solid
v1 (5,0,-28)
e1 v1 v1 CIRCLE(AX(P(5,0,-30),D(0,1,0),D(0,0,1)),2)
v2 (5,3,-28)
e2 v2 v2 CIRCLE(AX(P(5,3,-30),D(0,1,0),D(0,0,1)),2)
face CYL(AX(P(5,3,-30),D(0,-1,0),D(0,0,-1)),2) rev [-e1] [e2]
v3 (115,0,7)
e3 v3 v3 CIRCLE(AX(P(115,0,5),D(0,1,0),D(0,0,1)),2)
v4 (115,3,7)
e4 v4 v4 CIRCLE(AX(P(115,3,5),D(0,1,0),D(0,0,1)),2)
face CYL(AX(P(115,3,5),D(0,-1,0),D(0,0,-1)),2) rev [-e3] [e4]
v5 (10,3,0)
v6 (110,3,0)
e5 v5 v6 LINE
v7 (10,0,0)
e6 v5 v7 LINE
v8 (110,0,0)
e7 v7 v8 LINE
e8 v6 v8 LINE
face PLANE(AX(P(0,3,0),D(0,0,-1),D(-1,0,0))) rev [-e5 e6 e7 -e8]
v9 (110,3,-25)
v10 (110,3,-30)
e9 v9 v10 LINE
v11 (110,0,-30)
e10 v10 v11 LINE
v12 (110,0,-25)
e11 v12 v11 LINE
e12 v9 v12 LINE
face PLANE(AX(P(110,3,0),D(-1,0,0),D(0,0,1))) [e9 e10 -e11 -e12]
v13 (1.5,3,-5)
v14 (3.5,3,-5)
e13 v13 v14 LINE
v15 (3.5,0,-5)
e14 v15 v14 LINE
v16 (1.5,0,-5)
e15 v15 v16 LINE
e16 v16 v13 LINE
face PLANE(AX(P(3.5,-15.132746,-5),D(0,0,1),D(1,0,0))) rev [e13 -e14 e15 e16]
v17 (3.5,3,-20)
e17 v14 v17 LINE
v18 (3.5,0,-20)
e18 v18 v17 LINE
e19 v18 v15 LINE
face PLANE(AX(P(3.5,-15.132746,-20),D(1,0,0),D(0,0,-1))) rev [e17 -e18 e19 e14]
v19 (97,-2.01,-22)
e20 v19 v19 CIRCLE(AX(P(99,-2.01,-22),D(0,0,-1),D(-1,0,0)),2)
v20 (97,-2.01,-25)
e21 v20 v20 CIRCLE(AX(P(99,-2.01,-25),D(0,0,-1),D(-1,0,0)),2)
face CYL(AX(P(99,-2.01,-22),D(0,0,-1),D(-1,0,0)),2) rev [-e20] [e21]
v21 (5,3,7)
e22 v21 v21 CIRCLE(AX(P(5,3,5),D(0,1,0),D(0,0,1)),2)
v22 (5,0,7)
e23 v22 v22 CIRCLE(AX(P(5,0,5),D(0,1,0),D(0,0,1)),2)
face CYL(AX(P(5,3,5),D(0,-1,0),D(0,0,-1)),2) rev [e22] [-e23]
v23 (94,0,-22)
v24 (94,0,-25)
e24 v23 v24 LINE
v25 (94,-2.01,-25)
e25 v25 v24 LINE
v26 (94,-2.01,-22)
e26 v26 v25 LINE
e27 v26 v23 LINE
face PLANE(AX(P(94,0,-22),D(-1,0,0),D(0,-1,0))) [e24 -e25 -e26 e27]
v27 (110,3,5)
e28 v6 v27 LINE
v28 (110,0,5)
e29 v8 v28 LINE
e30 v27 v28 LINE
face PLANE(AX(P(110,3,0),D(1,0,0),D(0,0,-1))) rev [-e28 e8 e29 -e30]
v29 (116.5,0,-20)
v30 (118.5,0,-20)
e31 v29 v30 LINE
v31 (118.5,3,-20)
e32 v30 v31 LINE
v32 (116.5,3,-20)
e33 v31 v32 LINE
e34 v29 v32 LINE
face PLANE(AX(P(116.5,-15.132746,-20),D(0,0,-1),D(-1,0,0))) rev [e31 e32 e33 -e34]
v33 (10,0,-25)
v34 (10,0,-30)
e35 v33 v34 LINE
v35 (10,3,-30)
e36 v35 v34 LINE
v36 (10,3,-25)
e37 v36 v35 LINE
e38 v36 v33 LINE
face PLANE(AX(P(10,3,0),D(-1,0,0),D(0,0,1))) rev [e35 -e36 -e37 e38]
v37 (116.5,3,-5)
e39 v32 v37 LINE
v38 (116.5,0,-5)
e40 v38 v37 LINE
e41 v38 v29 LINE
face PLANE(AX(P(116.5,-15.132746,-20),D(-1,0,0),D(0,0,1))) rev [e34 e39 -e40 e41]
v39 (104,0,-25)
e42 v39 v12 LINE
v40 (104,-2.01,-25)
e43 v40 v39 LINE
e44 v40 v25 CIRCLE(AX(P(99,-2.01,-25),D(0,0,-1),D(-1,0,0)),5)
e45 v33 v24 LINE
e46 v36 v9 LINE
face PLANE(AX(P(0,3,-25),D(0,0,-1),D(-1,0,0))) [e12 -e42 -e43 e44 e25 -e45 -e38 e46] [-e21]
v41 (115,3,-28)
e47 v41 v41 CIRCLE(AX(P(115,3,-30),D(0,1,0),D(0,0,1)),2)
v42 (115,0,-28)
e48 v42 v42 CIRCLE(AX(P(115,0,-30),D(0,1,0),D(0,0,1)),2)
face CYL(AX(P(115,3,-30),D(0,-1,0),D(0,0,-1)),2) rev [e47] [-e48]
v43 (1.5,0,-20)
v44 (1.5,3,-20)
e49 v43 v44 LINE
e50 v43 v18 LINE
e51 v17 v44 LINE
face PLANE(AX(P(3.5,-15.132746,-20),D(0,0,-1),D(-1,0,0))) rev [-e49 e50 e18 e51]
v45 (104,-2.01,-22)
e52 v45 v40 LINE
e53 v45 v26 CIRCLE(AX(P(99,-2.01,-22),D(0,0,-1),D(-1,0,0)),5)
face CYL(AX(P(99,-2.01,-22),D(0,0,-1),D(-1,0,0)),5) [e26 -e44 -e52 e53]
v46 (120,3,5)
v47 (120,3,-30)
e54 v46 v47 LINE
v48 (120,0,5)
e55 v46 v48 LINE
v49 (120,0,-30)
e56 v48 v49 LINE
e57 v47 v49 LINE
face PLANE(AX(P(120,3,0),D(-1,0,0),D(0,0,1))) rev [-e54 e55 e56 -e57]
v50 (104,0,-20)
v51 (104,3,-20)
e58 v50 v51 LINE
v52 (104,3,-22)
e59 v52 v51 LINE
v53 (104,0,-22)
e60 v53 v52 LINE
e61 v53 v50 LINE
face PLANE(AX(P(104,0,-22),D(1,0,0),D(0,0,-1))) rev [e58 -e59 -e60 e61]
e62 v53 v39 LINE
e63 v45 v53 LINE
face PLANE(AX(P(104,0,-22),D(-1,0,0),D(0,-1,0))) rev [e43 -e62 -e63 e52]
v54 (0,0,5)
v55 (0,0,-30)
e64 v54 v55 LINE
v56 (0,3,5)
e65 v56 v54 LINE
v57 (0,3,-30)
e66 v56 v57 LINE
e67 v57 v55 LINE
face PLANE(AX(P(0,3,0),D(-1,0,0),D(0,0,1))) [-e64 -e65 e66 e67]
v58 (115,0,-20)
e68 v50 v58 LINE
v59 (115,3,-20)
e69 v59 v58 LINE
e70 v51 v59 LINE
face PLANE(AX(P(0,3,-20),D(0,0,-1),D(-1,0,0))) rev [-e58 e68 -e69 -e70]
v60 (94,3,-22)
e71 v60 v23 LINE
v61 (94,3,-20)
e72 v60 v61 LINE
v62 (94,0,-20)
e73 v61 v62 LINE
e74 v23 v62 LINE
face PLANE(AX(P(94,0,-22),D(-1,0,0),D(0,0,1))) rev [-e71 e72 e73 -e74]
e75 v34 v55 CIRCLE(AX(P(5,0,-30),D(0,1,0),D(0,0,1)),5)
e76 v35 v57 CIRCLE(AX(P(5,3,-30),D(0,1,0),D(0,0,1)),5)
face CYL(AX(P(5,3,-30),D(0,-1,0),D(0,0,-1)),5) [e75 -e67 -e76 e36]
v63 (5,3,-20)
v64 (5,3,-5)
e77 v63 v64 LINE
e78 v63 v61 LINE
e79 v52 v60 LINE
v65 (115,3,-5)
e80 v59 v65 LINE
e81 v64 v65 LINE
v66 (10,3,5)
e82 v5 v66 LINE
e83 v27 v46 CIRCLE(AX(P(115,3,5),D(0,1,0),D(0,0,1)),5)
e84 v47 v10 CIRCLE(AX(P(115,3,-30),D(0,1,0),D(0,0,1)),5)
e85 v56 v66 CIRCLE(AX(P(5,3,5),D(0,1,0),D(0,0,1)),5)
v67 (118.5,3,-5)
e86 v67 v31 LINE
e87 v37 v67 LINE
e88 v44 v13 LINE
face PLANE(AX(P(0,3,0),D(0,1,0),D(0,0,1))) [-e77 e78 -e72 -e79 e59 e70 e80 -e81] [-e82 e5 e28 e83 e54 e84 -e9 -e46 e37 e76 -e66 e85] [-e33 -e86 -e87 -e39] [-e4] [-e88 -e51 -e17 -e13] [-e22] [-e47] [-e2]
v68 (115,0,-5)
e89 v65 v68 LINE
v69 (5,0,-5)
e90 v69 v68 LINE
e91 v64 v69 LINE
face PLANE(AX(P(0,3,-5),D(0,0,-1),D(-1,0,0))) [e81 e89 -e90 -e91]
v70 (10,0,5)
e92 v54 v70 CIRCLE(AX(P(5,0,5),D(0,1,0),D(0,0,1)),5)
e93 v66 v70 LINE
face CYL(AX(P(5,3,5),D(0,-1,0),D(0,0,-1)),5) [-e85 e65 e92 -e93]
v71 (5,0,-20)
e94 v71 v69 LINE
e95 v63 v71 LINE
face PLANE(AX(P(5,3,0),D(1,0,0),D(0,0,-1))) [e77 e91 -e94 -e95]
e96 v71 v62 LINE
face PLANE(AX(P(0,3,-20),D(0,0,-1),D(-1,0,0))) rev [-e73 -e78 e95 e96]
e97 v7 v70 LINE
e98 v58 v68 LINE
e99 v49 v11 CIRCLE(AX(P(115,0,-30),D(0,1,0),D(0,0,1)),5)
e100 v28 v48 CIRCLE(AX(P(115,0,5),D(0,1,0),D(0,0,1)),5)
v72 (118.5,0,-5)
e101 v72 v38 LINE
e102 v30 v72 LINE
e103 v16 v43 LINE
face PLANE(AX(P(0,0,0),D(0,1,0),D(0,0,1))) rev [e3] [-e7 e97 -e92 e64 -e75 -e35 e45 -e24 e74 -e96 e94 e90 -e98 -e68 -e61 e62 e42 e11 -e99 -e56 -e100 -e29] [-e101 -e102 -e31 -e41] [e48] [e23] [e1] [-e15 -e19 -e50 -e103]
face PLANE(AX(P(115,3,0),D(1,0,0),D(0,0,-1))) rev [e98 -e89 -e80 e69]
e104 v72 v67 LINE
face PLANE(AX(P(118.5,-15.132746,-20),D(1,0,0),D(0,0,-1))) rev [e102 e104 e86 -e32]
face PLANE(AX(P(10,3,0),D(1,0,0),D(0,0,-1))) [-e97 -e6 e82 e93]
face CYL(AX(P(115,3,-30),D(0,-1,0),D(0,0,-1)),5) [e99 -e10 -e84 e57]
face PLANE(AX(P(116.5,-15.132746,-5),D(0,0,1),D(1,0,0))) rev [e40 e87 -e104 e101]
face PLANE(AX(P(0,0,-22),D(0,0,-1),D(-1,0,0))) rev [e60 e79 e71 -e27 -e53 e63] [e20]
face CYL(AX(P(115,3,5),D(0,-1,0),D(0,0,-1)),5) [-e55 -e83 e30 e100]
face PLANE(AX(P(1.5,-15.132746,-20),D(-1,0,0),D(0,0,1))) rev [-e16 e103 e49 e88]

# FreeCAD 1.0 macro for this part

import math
import FreeCAD as App
import Part
import Sketcher
Q = App.Units.Quantity

doc = App.newDocument("Part")
body = doc.addObject("PartDesign::Body", "Body")

# Sketch on XZ plane
sketch1 = body.newObject("Sketcher::SketchObject", "Sketch")
sketch1.AttachmentSupport = (doc.getObject("XZ_Plane"), [""])
sketch1.MapMode = "FlatFace"
sketch1.addGeometry(Part.ArcOfCircle(Part.Circle(App.Vector(5, -30, 0), App.Vector(0, 0, 1), 5), math.radians(180), math.radians(360)), False)
sketch1.addGeometry(Part.LineSegment(App.Vector(0, -30, 0), App.Vector(0, 5, 0)), False)
sketch1.addGeometry(Part.ArcOfCircle(Part.Circle(App.Vector(5, 5, 0), App.Vector(0, 0, 1), 5), math.radians(0), math.radians(180)), False)
sketch1.addGeometry(Part.LineSegment(App.Vector(10, 5, 0), App.Vector(10, 0, 0)), False)
sketch1.addGeometry(Part.LineSegment(App.Vector(10, 0, 0), App.Vector(110, 0, 0)), False)
sketch1.addGeometry(Part.LineSegment(App.Vector(110, 0, 0), App.Vector(110, 5, 0)), False)
sketch1.addGeometry(Part.ArcOfCircle(Part.Circle(App.Vector(115, 5, 0), App.Vector(0, 0, 1), 5), math.radians(0), math.radians(180)), False)
sketch1.addGeometry(Part.LineSegment(App.Vector(120, 5, 0), App.Vector(120, -30, 0)), False)
sketch1.addGeometry(Part.ArcOfCircle(Part.Circle(App.Vector(115, -30, 0), App.Vector(0, 0, 1), 5), math.radians(180), math.radians(360)), False)
sketch1.addGeometry(Part.LineSegment(App.Vector(110, -30, 0), App.Vector(110, -25, 0)), False)
sketch1.addGeometry(Part.LineSegment(App.Vector(110, -25, 0), App.Vector(10, -25, 0)), False)
sketch1.addGeometry(Part.LineSegment(App.Vector(10, -25, 0), App.Vector(10, -30, 0)), False)
sketch1.addGeometry(Part.Circle(App.Vector(5, -30, 0), App.Vector(0, 0, 1), 2), False)
sketch1.addGeometry(Part.LineSegment(App.Vector(5, -5, 0), App.Vector(5, -20, 0)), False)
sketch1.addGeometry(Part.LineSegment(App.Vector(5, -20, 0), App.Vector(115, -20, 0)), False)
sketch1.addGeometry(Part.LineSegment(App.Vector(115, -20, 0), App.Vector(115, -5, 0)), False)
sketch1.addGeometry(Part.LineSegment(App.Vector(115, -5, 0), App.Vector(5, -5, 0)), False)
sketch1.addGeometry(Part.Circle(App.Vector(5, 5, 0), App.Vector(0, 0, 1), 2), False)
sketch1.addGeometry(Part.Circle(App.Vector(115, 5, 0), App.Vector(0, 0, 1), 2), False)
sketch1.addGeometry(Part.Circle(App.Vector(115, -30, 0), App.Vector(0, 0, 1), 2), False)
sketch1.addConstraint(Sketcher.Constraint("Tangent", 0, 1, 1, 1))
sketch1.addConstraint(Sketcher.Constraint("Tangent", 1, 2, 2, 2))
sketch1.addConstraint(Sketcher.Constraint("Tangent", 2, 1, 3, 1))
sketch1.addConstraint(Sketcher.Constraint("Coincident", 3, 2, 4, 1))
sketch1.addConstraint(Sketcher.Constraint("Coincident", 4, 2, 5, 1))
sketch1.addConstraint(Sketcher.Constraint("Tangent", 5, 2, 6, 2))
sketch1.addConstraint(Sketcher.Constraint("Tangent", 6, 1, 7, 1))
sketch1.addConstraint(Sketcher.Constraint("Tangent", 7, 2, 8, 2))
sketch1.addConstraint(Sketcher.Constraint("Tangent", 8, 1, 9, 1))
sketch1.addConstraint(Sketcher.Constraint("Coincident", 9, 2, 10, 1))
sketch1.addConstraint(Sketcher.Constraint("Coincident", 10, 2, 11, 1))
sketch1.addConstraint(Sketcher.Constraint("Tangent", 11, 2, 0, 2))
sketch1.addConstraint(Sketcher.Constraint("Coincident", 13, 2, 14, 1))
sketch1.addConstraint(Sketcher.Constraint("Coincident", 14, 2, 15, 1))
sketch1.addConstraint(Sketcher.Constraint("Coincident", 15, 2, 16, 1))
sketch1.addConstraint(Sketcher.Constraint("Coincident", 16, 2, 13, 1))
sketch1.addConstraint(Sketcher.Constraint("Vertical", 1))
sketch1.addConstraint(Sketcher.Constraint("Vertical", 3))
sketch1.addConstraint(Sketcher.Constraint("Horizontal", 4))
sketch1.addConstraint(Sketcher.Constraint("Vertical", 5))
sketch1.addConstraint(Sketcher.Constraint("Vertical", 7))
sketch1.addConstraint(Sketcher.Constraint("Vertical", 9))
sketch1.addConstraint(Sketcher.Constraint("Horizontal", 10))
sketch1.addConstraint(Sketcher.Constraint("Vertical", 11))
sketch1.addConstraint(Sketcher.Constraint("Vertical", 13))
sketch1.addConstraint(Sketcher.Constraint("Horizontal", 14))
sketch1.addConstraint(Sketcher.Constraint("Vertical", 15))
sketch1.addConstraint(Sketcher.Constraint("Horizontal", 16))
sketch1.addConstraint(Sketcher.Constraint("Coincident", 12, 3, 0, 3))
sketch1.addConstraint(Sketcher.Constraint("Coincident", 17, 3, 2, 3))
sketch1.addConstraint(Sketcher.Constraint("Coincident", 18, 3, 6, 3))
sketch1.addConstraint(Sketcher.Constraint("Coincident", 19, 3, 8, 3))
sketch1.addConstraint(Sketcher.Constraint("Equal", 0, 2))
sketch1.addConstraint(Sketcher.Constraint("Equal", 2, 6))
sketch1.addConstraint(Sketcher.Constraint("Equal", 6, 8))
sketch1.addConstraint(Sketcher.Constraint("Equal", 12, 17))
sketch1.addConstraint(Sketcher.Constraint("Equal", 17, 18))
sketch1.addConstraint(Sketcher.Constraint("Equal", 18, 19))
sketch1.addConstraint(Sketcher.Constraint("PointOnObject", 0, 1, -2))
sketch1.addConstraint(Sketcher.Constraint("PointOnObject", 3, 2, -1))
sketch1.addConstraint(Sketcher.Constraint("Horizontal", 2, 3, 6, 3))
sketch1.addConstraint(Sketcher.Constraint("Horizontal", 0, 3, 8, 3))
sketch1.addConstraint(Sketcher.Constraint("Vertical", 17, 3, 13, 2))
sketch1.addConstraint(Sketcher.Constraint("Vertical", 19, 3, 14, 2))
sketch1.addConstraint(Sketcher.Constraint("Equal", 5, 9))
sketch1.addConstraint(Sketcher.Constraint("Diameter", 12, Q("4 mm")))
sketch1.addConstraint(Sketcher.Constraint("Radius", 0, Q("5 mm")))
sketch1.addConstraint(Sketcher.Constraint("DistanceX", 4, 1, 4, 2, Q("100 mm")))
sketch1.addConstraint(Sketcher.Constraint("DistanceY", 1, 1, 1, 2, Q("35 mm")))
sketch1.addConstraint(Sketcher.Constraint("DistanceY", 3, 2, 3, 1, Q("5 mm")))
sketch1.addConstraint(Sketcher.Constraint("DistanceY", 13, 2, 13, 1, Q("15 mm")))
sketch1.addConstraint(Sketcher.Constraint("DistanceY", 13, 2, -1, 1, Q("20 mm")))
pad1 = body.newObject("PartDesign::Pad", "Pad")
pad1.Profile = sketch1
pad1.Length = 3
pad1.Reversed = True

# Sketch on XZ plane
sketch2 = body.newObject("Sketcher::SketchObject", "Sketch001")
sketch2.AttachmentSupport = (doc.getObject("XZ_Plane"), [""])
sketch2.MapMode = "FlatFace"
sketch2.AttachmentOffset = App.Placement(App.Vector(0, 0, -3), App.Rotation())
sketch2.addGeometry(Part.LineSegment(App.Vector(116.5, -20, 0), App.Vector(116.5, -5, 0)), False)
sketch2.addGeometry(Part.LineSegment(App.Vector(116.5, -5, 0), App.Vector(118.5, -5, 0)), False)
sketch2.addGeometry(Part.LineSegment(App.Vector(118.5, -5, 0), App.Vector(118.5, -20, 0)), False)
sketch2.addGeometry(Part.LineSegment(App.Vector(118.5, -20, 0), App.Vector(116.5, -20, 0)), False)
sketch2.addGeometry(Part.LineSegment(App.Vector(1.5, -20, 0), App.Vector(1.5, -5, 0)), False)
sketch2.addGeometry(Part.LineSegment(App.Vector(1.5, -5, 0), App.Vector(3.5, -5, 0)), False)
sketch2.addGeometry(Part.LineSegment(App.Vector(3.5, -5, 0), App.Vector(3.5, -20, 0)), False)
sketch2.addGeometry(Part.LineSegment(App.Vector(3.5, -20, 0), App.Vector(1.5, -20, 0)), False)
sketch2.addConstraint(Sketcher.Constraint("Coincident", 0, 2, 1, 1))
sketch2.addConstraint(Sketcher.Constraint("Coincident", 1, 2, 2, 1))
sketch2.addConstraint(Sketcher.Constraint("Coincident", 2, 2, 3, 1))
sketch2.addConstraint(Sketcher.Constraint("Coincident", 3, 2, 0, 1))
sketch2.addConstraint(Sketcher.Constraint("Coincident", 4, 2, 5, 1))
sketch2.addConstraint(Sketcher.Constraint("Coincident", 5, 2, 6, 1))
sketch2.addConstraint(Sketcher.Constraint("Coincident", 6, 2, 7, 1))
sketch2.addConstraint(Sketcher.Constraint("Coincident", 7, 2, 4, 1))
sketch2.addConstraint(Sketcher.Constraint("Vertical", 0))
sketch2.addConstraint(Sketcher.Constraint("Horizontal", 1))
sketch2.addConstraint(Sketcher.Constraint("Vertical", 2))
sketch2.addConstraint(Sketcher.Constraint("Horizontal", 3))
sketch2.addConstraint(Sketcher.Constraint("Vertical", 4))
sketch2.addConstraint(Sketcher.Constraint("Horizontal", 5))
sketch2.addConstraint(Sketcher.Constraint("Vertical", 6))
sketch2.addConstraint(Sketcher.Constraint("Horizontal", 7))
sketch2.addConstraint(Sketcher.Constraint("Horizontal", 1, 2, 4, 2))
sketch2.addConstraint(Sketcher.Constraint("Horizontal", 3, 2, 6, 2))
sketch2.addConstraint(Sketcher.Constraint("Equal", 3, 5))
sketch2.addConstraint(Sketcher.Constraint("DistanceX", 1, 1, 1, 2, Q("2 mm")))
sketch2.addConstraint(Sketcher.Constraint("DistanceY", 0, 1, 0, 2, Q("15 mm")))
sketch2.addConstraint(Sketcher.Constraint("DistanceY", 0, 2, -1, 1, Q("5 mm")))
sketch2.addConstraint(Sketcher.Constraint("DistanceX", 4, 2, 0, 2, Q("115 mm")))
sketch2.addConstraint(Sketcher.Constraint("DistanceX", -1, 1, 0, 2, Q("116.5 mm")))
pocket1 = body.newObject("PartDesign::Pocket", "Pocket")
pocket1.Profile = sketch2
pocket1.Length = 3
pocket1.Reversed = True

# Sketch on XY plane
sketch3 = body.newObject("Sketcher::SketchObject", "Sketch002")
sketch3.AttachmentSupport = (doc.getObject("XY_Plane"), [""])
sketch3.MapMode = "FlatFace"
sketch3.AttachmentOffset = App.Placement(App.Vector(0, 0, -25), App.Rotation())
sketch3.addGeometry(Part.LineSegment(App.Vector(104, 0, 0), App.Vector(104, -2, 0)), False)
sketch3.addGeometry(Part.ArcOfCircle(Part.Circle(App.Vector(99, -2, 0), App.Vector(0, 0, 1), 5), math.radians(180), math.radians(360)), False)
sketch3.addGeometry(Part.LineSegment(App.Vector(94, -2, 0), App.Vector(94, 0, 0)), False)
sketch3.addGeometry(Part.LineSegment(App.Vector(94, 0, 0), App.Vector(104, 0, 0)), False)
sketch3.addGeometry(Part.Circle(App.Vector(99, -2, 0), App.Vector(0, 0, 1), 2), False)
sketch3.addConstraint(Sketcher.Constraint("Tangent", 0, 2, 1, 2))
sketch3.addConstraint(Sketcher.Constraint("Tangent", 1, 1, 2, 1))
sketch3.addConstraint(Sketcher.Constraint("Coincident", 2, 2, 3, 1))
sketch3.addConstraint(Sketcher.Constraint("Coincident", 3, 2, 0, 1))
sketch3.addConstraint(Sketcher.Constraint("Vertical", 0))
sketch3.addConstraint(Sketcher.Constraint("Vertical", 2))
sketch3.addConstraint(Sketcher.Constraint("Horizontal", 3))
sketch3.addConstraint(Sketcher.Constraint("Coincident", 4, 3, 1, 3))
sketch3.addConstraint(Sketcher.Constraint("PointOnObject", 2, 2, -1))
sketch3.addConstraint(Sketcher.Constraint("Diameter", 4, Q("4 mm")))
sketch3.addConstraint(Sketcher.Constraint("Radius", 1, Q("5 mm")))
sketch3.addConstraint(Sketcher.Constraint("DistanceX", -1, 1, 1, 3, Q("99 mm")))
sketch3.addConstraint(Sketcher.Constraint("DistanceY", 0, 2, 0, 1, Q("2.01 mm")))
pad2 = body.newObject("PartDesign::Pad", "Pad001")
pad2.Profile = sketch3
pad2.Length = 3

# Sketch on XY plane
sketch4 = body.newObject("Sketcher::SketchObject", "Sketch003")
sketch4.AttachmentSupport = (doc.getObject("XY_Plane"), [""])
sketch4.MapMode = "FlatFace"
sketch4.AttachmentOffset = App.Placement(App.Vector(0, 0, -20), App.Rotation())
sketch4.addGeometry(Part.LineSegment(App.Vector(94, 3, 0), App.Vector(94, 0, 0)), False)
sketch4.addGeometry(Part.LineSegment(App.Vector(94, 0, 0), App.Vector(104, 0, 0)), False)
sketch4.addGeometry(Part.LineSegment(App.Vector(104, 0, 0), App.Vector(104, 3, 0)), False)
sketch4.addGeometry(Part.LineSegment(App.Vector(104, 3, 0), App.Vector(94, 3, 0)), False)
sketch4.addConstraint(Sketcher.Constraint("Coincident", 0, 2, 1, 1))
sketch4.addConstraint(Sketcher.Constraint("Coincident", 1, 2, 2, 1))
sketch4.addConstraint(Sketcher.Constraint("Coincident", 2, 2, 3, 1))
sketch4.addConstraint(Sketcher.Constraint("Coincident", 3, 2, 0, 1))
sketch4.addConstraint(Sketcher.Constraint("Vertical", 0))
sketch4.addConstraint(Sketcher.Constraint("Horizontal", 1))
sketch4.addConstraint(Sketcher.Constraint("Vertical", 2))
sketch4.addConstraint(Sketcher.Constraint("Horizontal", 3))
sketch4.addConstraint(Sketcher.Constraint("PointOnObject", 0, 2, -1))
sketch4.addConstraint(Sketcher.Constraint("DistanceX", 1, 1, 1, 2, Q("10 mm")))
sketch4.addConstraint(Sketcher.Constraint("DistanceY", 0, 2, 0, 1, Q("3 mm")))
sketch4.addConstraint(Sketcher.Constraint("DistanceX", -1, 1, 0, 2, Q("94 mm")))
pocket2 = body.newObject("PartDesign::Pocket", "Pocket001")
pocket2.Profile = sketch4
pocket2.Length = 2

doc.recompute()
